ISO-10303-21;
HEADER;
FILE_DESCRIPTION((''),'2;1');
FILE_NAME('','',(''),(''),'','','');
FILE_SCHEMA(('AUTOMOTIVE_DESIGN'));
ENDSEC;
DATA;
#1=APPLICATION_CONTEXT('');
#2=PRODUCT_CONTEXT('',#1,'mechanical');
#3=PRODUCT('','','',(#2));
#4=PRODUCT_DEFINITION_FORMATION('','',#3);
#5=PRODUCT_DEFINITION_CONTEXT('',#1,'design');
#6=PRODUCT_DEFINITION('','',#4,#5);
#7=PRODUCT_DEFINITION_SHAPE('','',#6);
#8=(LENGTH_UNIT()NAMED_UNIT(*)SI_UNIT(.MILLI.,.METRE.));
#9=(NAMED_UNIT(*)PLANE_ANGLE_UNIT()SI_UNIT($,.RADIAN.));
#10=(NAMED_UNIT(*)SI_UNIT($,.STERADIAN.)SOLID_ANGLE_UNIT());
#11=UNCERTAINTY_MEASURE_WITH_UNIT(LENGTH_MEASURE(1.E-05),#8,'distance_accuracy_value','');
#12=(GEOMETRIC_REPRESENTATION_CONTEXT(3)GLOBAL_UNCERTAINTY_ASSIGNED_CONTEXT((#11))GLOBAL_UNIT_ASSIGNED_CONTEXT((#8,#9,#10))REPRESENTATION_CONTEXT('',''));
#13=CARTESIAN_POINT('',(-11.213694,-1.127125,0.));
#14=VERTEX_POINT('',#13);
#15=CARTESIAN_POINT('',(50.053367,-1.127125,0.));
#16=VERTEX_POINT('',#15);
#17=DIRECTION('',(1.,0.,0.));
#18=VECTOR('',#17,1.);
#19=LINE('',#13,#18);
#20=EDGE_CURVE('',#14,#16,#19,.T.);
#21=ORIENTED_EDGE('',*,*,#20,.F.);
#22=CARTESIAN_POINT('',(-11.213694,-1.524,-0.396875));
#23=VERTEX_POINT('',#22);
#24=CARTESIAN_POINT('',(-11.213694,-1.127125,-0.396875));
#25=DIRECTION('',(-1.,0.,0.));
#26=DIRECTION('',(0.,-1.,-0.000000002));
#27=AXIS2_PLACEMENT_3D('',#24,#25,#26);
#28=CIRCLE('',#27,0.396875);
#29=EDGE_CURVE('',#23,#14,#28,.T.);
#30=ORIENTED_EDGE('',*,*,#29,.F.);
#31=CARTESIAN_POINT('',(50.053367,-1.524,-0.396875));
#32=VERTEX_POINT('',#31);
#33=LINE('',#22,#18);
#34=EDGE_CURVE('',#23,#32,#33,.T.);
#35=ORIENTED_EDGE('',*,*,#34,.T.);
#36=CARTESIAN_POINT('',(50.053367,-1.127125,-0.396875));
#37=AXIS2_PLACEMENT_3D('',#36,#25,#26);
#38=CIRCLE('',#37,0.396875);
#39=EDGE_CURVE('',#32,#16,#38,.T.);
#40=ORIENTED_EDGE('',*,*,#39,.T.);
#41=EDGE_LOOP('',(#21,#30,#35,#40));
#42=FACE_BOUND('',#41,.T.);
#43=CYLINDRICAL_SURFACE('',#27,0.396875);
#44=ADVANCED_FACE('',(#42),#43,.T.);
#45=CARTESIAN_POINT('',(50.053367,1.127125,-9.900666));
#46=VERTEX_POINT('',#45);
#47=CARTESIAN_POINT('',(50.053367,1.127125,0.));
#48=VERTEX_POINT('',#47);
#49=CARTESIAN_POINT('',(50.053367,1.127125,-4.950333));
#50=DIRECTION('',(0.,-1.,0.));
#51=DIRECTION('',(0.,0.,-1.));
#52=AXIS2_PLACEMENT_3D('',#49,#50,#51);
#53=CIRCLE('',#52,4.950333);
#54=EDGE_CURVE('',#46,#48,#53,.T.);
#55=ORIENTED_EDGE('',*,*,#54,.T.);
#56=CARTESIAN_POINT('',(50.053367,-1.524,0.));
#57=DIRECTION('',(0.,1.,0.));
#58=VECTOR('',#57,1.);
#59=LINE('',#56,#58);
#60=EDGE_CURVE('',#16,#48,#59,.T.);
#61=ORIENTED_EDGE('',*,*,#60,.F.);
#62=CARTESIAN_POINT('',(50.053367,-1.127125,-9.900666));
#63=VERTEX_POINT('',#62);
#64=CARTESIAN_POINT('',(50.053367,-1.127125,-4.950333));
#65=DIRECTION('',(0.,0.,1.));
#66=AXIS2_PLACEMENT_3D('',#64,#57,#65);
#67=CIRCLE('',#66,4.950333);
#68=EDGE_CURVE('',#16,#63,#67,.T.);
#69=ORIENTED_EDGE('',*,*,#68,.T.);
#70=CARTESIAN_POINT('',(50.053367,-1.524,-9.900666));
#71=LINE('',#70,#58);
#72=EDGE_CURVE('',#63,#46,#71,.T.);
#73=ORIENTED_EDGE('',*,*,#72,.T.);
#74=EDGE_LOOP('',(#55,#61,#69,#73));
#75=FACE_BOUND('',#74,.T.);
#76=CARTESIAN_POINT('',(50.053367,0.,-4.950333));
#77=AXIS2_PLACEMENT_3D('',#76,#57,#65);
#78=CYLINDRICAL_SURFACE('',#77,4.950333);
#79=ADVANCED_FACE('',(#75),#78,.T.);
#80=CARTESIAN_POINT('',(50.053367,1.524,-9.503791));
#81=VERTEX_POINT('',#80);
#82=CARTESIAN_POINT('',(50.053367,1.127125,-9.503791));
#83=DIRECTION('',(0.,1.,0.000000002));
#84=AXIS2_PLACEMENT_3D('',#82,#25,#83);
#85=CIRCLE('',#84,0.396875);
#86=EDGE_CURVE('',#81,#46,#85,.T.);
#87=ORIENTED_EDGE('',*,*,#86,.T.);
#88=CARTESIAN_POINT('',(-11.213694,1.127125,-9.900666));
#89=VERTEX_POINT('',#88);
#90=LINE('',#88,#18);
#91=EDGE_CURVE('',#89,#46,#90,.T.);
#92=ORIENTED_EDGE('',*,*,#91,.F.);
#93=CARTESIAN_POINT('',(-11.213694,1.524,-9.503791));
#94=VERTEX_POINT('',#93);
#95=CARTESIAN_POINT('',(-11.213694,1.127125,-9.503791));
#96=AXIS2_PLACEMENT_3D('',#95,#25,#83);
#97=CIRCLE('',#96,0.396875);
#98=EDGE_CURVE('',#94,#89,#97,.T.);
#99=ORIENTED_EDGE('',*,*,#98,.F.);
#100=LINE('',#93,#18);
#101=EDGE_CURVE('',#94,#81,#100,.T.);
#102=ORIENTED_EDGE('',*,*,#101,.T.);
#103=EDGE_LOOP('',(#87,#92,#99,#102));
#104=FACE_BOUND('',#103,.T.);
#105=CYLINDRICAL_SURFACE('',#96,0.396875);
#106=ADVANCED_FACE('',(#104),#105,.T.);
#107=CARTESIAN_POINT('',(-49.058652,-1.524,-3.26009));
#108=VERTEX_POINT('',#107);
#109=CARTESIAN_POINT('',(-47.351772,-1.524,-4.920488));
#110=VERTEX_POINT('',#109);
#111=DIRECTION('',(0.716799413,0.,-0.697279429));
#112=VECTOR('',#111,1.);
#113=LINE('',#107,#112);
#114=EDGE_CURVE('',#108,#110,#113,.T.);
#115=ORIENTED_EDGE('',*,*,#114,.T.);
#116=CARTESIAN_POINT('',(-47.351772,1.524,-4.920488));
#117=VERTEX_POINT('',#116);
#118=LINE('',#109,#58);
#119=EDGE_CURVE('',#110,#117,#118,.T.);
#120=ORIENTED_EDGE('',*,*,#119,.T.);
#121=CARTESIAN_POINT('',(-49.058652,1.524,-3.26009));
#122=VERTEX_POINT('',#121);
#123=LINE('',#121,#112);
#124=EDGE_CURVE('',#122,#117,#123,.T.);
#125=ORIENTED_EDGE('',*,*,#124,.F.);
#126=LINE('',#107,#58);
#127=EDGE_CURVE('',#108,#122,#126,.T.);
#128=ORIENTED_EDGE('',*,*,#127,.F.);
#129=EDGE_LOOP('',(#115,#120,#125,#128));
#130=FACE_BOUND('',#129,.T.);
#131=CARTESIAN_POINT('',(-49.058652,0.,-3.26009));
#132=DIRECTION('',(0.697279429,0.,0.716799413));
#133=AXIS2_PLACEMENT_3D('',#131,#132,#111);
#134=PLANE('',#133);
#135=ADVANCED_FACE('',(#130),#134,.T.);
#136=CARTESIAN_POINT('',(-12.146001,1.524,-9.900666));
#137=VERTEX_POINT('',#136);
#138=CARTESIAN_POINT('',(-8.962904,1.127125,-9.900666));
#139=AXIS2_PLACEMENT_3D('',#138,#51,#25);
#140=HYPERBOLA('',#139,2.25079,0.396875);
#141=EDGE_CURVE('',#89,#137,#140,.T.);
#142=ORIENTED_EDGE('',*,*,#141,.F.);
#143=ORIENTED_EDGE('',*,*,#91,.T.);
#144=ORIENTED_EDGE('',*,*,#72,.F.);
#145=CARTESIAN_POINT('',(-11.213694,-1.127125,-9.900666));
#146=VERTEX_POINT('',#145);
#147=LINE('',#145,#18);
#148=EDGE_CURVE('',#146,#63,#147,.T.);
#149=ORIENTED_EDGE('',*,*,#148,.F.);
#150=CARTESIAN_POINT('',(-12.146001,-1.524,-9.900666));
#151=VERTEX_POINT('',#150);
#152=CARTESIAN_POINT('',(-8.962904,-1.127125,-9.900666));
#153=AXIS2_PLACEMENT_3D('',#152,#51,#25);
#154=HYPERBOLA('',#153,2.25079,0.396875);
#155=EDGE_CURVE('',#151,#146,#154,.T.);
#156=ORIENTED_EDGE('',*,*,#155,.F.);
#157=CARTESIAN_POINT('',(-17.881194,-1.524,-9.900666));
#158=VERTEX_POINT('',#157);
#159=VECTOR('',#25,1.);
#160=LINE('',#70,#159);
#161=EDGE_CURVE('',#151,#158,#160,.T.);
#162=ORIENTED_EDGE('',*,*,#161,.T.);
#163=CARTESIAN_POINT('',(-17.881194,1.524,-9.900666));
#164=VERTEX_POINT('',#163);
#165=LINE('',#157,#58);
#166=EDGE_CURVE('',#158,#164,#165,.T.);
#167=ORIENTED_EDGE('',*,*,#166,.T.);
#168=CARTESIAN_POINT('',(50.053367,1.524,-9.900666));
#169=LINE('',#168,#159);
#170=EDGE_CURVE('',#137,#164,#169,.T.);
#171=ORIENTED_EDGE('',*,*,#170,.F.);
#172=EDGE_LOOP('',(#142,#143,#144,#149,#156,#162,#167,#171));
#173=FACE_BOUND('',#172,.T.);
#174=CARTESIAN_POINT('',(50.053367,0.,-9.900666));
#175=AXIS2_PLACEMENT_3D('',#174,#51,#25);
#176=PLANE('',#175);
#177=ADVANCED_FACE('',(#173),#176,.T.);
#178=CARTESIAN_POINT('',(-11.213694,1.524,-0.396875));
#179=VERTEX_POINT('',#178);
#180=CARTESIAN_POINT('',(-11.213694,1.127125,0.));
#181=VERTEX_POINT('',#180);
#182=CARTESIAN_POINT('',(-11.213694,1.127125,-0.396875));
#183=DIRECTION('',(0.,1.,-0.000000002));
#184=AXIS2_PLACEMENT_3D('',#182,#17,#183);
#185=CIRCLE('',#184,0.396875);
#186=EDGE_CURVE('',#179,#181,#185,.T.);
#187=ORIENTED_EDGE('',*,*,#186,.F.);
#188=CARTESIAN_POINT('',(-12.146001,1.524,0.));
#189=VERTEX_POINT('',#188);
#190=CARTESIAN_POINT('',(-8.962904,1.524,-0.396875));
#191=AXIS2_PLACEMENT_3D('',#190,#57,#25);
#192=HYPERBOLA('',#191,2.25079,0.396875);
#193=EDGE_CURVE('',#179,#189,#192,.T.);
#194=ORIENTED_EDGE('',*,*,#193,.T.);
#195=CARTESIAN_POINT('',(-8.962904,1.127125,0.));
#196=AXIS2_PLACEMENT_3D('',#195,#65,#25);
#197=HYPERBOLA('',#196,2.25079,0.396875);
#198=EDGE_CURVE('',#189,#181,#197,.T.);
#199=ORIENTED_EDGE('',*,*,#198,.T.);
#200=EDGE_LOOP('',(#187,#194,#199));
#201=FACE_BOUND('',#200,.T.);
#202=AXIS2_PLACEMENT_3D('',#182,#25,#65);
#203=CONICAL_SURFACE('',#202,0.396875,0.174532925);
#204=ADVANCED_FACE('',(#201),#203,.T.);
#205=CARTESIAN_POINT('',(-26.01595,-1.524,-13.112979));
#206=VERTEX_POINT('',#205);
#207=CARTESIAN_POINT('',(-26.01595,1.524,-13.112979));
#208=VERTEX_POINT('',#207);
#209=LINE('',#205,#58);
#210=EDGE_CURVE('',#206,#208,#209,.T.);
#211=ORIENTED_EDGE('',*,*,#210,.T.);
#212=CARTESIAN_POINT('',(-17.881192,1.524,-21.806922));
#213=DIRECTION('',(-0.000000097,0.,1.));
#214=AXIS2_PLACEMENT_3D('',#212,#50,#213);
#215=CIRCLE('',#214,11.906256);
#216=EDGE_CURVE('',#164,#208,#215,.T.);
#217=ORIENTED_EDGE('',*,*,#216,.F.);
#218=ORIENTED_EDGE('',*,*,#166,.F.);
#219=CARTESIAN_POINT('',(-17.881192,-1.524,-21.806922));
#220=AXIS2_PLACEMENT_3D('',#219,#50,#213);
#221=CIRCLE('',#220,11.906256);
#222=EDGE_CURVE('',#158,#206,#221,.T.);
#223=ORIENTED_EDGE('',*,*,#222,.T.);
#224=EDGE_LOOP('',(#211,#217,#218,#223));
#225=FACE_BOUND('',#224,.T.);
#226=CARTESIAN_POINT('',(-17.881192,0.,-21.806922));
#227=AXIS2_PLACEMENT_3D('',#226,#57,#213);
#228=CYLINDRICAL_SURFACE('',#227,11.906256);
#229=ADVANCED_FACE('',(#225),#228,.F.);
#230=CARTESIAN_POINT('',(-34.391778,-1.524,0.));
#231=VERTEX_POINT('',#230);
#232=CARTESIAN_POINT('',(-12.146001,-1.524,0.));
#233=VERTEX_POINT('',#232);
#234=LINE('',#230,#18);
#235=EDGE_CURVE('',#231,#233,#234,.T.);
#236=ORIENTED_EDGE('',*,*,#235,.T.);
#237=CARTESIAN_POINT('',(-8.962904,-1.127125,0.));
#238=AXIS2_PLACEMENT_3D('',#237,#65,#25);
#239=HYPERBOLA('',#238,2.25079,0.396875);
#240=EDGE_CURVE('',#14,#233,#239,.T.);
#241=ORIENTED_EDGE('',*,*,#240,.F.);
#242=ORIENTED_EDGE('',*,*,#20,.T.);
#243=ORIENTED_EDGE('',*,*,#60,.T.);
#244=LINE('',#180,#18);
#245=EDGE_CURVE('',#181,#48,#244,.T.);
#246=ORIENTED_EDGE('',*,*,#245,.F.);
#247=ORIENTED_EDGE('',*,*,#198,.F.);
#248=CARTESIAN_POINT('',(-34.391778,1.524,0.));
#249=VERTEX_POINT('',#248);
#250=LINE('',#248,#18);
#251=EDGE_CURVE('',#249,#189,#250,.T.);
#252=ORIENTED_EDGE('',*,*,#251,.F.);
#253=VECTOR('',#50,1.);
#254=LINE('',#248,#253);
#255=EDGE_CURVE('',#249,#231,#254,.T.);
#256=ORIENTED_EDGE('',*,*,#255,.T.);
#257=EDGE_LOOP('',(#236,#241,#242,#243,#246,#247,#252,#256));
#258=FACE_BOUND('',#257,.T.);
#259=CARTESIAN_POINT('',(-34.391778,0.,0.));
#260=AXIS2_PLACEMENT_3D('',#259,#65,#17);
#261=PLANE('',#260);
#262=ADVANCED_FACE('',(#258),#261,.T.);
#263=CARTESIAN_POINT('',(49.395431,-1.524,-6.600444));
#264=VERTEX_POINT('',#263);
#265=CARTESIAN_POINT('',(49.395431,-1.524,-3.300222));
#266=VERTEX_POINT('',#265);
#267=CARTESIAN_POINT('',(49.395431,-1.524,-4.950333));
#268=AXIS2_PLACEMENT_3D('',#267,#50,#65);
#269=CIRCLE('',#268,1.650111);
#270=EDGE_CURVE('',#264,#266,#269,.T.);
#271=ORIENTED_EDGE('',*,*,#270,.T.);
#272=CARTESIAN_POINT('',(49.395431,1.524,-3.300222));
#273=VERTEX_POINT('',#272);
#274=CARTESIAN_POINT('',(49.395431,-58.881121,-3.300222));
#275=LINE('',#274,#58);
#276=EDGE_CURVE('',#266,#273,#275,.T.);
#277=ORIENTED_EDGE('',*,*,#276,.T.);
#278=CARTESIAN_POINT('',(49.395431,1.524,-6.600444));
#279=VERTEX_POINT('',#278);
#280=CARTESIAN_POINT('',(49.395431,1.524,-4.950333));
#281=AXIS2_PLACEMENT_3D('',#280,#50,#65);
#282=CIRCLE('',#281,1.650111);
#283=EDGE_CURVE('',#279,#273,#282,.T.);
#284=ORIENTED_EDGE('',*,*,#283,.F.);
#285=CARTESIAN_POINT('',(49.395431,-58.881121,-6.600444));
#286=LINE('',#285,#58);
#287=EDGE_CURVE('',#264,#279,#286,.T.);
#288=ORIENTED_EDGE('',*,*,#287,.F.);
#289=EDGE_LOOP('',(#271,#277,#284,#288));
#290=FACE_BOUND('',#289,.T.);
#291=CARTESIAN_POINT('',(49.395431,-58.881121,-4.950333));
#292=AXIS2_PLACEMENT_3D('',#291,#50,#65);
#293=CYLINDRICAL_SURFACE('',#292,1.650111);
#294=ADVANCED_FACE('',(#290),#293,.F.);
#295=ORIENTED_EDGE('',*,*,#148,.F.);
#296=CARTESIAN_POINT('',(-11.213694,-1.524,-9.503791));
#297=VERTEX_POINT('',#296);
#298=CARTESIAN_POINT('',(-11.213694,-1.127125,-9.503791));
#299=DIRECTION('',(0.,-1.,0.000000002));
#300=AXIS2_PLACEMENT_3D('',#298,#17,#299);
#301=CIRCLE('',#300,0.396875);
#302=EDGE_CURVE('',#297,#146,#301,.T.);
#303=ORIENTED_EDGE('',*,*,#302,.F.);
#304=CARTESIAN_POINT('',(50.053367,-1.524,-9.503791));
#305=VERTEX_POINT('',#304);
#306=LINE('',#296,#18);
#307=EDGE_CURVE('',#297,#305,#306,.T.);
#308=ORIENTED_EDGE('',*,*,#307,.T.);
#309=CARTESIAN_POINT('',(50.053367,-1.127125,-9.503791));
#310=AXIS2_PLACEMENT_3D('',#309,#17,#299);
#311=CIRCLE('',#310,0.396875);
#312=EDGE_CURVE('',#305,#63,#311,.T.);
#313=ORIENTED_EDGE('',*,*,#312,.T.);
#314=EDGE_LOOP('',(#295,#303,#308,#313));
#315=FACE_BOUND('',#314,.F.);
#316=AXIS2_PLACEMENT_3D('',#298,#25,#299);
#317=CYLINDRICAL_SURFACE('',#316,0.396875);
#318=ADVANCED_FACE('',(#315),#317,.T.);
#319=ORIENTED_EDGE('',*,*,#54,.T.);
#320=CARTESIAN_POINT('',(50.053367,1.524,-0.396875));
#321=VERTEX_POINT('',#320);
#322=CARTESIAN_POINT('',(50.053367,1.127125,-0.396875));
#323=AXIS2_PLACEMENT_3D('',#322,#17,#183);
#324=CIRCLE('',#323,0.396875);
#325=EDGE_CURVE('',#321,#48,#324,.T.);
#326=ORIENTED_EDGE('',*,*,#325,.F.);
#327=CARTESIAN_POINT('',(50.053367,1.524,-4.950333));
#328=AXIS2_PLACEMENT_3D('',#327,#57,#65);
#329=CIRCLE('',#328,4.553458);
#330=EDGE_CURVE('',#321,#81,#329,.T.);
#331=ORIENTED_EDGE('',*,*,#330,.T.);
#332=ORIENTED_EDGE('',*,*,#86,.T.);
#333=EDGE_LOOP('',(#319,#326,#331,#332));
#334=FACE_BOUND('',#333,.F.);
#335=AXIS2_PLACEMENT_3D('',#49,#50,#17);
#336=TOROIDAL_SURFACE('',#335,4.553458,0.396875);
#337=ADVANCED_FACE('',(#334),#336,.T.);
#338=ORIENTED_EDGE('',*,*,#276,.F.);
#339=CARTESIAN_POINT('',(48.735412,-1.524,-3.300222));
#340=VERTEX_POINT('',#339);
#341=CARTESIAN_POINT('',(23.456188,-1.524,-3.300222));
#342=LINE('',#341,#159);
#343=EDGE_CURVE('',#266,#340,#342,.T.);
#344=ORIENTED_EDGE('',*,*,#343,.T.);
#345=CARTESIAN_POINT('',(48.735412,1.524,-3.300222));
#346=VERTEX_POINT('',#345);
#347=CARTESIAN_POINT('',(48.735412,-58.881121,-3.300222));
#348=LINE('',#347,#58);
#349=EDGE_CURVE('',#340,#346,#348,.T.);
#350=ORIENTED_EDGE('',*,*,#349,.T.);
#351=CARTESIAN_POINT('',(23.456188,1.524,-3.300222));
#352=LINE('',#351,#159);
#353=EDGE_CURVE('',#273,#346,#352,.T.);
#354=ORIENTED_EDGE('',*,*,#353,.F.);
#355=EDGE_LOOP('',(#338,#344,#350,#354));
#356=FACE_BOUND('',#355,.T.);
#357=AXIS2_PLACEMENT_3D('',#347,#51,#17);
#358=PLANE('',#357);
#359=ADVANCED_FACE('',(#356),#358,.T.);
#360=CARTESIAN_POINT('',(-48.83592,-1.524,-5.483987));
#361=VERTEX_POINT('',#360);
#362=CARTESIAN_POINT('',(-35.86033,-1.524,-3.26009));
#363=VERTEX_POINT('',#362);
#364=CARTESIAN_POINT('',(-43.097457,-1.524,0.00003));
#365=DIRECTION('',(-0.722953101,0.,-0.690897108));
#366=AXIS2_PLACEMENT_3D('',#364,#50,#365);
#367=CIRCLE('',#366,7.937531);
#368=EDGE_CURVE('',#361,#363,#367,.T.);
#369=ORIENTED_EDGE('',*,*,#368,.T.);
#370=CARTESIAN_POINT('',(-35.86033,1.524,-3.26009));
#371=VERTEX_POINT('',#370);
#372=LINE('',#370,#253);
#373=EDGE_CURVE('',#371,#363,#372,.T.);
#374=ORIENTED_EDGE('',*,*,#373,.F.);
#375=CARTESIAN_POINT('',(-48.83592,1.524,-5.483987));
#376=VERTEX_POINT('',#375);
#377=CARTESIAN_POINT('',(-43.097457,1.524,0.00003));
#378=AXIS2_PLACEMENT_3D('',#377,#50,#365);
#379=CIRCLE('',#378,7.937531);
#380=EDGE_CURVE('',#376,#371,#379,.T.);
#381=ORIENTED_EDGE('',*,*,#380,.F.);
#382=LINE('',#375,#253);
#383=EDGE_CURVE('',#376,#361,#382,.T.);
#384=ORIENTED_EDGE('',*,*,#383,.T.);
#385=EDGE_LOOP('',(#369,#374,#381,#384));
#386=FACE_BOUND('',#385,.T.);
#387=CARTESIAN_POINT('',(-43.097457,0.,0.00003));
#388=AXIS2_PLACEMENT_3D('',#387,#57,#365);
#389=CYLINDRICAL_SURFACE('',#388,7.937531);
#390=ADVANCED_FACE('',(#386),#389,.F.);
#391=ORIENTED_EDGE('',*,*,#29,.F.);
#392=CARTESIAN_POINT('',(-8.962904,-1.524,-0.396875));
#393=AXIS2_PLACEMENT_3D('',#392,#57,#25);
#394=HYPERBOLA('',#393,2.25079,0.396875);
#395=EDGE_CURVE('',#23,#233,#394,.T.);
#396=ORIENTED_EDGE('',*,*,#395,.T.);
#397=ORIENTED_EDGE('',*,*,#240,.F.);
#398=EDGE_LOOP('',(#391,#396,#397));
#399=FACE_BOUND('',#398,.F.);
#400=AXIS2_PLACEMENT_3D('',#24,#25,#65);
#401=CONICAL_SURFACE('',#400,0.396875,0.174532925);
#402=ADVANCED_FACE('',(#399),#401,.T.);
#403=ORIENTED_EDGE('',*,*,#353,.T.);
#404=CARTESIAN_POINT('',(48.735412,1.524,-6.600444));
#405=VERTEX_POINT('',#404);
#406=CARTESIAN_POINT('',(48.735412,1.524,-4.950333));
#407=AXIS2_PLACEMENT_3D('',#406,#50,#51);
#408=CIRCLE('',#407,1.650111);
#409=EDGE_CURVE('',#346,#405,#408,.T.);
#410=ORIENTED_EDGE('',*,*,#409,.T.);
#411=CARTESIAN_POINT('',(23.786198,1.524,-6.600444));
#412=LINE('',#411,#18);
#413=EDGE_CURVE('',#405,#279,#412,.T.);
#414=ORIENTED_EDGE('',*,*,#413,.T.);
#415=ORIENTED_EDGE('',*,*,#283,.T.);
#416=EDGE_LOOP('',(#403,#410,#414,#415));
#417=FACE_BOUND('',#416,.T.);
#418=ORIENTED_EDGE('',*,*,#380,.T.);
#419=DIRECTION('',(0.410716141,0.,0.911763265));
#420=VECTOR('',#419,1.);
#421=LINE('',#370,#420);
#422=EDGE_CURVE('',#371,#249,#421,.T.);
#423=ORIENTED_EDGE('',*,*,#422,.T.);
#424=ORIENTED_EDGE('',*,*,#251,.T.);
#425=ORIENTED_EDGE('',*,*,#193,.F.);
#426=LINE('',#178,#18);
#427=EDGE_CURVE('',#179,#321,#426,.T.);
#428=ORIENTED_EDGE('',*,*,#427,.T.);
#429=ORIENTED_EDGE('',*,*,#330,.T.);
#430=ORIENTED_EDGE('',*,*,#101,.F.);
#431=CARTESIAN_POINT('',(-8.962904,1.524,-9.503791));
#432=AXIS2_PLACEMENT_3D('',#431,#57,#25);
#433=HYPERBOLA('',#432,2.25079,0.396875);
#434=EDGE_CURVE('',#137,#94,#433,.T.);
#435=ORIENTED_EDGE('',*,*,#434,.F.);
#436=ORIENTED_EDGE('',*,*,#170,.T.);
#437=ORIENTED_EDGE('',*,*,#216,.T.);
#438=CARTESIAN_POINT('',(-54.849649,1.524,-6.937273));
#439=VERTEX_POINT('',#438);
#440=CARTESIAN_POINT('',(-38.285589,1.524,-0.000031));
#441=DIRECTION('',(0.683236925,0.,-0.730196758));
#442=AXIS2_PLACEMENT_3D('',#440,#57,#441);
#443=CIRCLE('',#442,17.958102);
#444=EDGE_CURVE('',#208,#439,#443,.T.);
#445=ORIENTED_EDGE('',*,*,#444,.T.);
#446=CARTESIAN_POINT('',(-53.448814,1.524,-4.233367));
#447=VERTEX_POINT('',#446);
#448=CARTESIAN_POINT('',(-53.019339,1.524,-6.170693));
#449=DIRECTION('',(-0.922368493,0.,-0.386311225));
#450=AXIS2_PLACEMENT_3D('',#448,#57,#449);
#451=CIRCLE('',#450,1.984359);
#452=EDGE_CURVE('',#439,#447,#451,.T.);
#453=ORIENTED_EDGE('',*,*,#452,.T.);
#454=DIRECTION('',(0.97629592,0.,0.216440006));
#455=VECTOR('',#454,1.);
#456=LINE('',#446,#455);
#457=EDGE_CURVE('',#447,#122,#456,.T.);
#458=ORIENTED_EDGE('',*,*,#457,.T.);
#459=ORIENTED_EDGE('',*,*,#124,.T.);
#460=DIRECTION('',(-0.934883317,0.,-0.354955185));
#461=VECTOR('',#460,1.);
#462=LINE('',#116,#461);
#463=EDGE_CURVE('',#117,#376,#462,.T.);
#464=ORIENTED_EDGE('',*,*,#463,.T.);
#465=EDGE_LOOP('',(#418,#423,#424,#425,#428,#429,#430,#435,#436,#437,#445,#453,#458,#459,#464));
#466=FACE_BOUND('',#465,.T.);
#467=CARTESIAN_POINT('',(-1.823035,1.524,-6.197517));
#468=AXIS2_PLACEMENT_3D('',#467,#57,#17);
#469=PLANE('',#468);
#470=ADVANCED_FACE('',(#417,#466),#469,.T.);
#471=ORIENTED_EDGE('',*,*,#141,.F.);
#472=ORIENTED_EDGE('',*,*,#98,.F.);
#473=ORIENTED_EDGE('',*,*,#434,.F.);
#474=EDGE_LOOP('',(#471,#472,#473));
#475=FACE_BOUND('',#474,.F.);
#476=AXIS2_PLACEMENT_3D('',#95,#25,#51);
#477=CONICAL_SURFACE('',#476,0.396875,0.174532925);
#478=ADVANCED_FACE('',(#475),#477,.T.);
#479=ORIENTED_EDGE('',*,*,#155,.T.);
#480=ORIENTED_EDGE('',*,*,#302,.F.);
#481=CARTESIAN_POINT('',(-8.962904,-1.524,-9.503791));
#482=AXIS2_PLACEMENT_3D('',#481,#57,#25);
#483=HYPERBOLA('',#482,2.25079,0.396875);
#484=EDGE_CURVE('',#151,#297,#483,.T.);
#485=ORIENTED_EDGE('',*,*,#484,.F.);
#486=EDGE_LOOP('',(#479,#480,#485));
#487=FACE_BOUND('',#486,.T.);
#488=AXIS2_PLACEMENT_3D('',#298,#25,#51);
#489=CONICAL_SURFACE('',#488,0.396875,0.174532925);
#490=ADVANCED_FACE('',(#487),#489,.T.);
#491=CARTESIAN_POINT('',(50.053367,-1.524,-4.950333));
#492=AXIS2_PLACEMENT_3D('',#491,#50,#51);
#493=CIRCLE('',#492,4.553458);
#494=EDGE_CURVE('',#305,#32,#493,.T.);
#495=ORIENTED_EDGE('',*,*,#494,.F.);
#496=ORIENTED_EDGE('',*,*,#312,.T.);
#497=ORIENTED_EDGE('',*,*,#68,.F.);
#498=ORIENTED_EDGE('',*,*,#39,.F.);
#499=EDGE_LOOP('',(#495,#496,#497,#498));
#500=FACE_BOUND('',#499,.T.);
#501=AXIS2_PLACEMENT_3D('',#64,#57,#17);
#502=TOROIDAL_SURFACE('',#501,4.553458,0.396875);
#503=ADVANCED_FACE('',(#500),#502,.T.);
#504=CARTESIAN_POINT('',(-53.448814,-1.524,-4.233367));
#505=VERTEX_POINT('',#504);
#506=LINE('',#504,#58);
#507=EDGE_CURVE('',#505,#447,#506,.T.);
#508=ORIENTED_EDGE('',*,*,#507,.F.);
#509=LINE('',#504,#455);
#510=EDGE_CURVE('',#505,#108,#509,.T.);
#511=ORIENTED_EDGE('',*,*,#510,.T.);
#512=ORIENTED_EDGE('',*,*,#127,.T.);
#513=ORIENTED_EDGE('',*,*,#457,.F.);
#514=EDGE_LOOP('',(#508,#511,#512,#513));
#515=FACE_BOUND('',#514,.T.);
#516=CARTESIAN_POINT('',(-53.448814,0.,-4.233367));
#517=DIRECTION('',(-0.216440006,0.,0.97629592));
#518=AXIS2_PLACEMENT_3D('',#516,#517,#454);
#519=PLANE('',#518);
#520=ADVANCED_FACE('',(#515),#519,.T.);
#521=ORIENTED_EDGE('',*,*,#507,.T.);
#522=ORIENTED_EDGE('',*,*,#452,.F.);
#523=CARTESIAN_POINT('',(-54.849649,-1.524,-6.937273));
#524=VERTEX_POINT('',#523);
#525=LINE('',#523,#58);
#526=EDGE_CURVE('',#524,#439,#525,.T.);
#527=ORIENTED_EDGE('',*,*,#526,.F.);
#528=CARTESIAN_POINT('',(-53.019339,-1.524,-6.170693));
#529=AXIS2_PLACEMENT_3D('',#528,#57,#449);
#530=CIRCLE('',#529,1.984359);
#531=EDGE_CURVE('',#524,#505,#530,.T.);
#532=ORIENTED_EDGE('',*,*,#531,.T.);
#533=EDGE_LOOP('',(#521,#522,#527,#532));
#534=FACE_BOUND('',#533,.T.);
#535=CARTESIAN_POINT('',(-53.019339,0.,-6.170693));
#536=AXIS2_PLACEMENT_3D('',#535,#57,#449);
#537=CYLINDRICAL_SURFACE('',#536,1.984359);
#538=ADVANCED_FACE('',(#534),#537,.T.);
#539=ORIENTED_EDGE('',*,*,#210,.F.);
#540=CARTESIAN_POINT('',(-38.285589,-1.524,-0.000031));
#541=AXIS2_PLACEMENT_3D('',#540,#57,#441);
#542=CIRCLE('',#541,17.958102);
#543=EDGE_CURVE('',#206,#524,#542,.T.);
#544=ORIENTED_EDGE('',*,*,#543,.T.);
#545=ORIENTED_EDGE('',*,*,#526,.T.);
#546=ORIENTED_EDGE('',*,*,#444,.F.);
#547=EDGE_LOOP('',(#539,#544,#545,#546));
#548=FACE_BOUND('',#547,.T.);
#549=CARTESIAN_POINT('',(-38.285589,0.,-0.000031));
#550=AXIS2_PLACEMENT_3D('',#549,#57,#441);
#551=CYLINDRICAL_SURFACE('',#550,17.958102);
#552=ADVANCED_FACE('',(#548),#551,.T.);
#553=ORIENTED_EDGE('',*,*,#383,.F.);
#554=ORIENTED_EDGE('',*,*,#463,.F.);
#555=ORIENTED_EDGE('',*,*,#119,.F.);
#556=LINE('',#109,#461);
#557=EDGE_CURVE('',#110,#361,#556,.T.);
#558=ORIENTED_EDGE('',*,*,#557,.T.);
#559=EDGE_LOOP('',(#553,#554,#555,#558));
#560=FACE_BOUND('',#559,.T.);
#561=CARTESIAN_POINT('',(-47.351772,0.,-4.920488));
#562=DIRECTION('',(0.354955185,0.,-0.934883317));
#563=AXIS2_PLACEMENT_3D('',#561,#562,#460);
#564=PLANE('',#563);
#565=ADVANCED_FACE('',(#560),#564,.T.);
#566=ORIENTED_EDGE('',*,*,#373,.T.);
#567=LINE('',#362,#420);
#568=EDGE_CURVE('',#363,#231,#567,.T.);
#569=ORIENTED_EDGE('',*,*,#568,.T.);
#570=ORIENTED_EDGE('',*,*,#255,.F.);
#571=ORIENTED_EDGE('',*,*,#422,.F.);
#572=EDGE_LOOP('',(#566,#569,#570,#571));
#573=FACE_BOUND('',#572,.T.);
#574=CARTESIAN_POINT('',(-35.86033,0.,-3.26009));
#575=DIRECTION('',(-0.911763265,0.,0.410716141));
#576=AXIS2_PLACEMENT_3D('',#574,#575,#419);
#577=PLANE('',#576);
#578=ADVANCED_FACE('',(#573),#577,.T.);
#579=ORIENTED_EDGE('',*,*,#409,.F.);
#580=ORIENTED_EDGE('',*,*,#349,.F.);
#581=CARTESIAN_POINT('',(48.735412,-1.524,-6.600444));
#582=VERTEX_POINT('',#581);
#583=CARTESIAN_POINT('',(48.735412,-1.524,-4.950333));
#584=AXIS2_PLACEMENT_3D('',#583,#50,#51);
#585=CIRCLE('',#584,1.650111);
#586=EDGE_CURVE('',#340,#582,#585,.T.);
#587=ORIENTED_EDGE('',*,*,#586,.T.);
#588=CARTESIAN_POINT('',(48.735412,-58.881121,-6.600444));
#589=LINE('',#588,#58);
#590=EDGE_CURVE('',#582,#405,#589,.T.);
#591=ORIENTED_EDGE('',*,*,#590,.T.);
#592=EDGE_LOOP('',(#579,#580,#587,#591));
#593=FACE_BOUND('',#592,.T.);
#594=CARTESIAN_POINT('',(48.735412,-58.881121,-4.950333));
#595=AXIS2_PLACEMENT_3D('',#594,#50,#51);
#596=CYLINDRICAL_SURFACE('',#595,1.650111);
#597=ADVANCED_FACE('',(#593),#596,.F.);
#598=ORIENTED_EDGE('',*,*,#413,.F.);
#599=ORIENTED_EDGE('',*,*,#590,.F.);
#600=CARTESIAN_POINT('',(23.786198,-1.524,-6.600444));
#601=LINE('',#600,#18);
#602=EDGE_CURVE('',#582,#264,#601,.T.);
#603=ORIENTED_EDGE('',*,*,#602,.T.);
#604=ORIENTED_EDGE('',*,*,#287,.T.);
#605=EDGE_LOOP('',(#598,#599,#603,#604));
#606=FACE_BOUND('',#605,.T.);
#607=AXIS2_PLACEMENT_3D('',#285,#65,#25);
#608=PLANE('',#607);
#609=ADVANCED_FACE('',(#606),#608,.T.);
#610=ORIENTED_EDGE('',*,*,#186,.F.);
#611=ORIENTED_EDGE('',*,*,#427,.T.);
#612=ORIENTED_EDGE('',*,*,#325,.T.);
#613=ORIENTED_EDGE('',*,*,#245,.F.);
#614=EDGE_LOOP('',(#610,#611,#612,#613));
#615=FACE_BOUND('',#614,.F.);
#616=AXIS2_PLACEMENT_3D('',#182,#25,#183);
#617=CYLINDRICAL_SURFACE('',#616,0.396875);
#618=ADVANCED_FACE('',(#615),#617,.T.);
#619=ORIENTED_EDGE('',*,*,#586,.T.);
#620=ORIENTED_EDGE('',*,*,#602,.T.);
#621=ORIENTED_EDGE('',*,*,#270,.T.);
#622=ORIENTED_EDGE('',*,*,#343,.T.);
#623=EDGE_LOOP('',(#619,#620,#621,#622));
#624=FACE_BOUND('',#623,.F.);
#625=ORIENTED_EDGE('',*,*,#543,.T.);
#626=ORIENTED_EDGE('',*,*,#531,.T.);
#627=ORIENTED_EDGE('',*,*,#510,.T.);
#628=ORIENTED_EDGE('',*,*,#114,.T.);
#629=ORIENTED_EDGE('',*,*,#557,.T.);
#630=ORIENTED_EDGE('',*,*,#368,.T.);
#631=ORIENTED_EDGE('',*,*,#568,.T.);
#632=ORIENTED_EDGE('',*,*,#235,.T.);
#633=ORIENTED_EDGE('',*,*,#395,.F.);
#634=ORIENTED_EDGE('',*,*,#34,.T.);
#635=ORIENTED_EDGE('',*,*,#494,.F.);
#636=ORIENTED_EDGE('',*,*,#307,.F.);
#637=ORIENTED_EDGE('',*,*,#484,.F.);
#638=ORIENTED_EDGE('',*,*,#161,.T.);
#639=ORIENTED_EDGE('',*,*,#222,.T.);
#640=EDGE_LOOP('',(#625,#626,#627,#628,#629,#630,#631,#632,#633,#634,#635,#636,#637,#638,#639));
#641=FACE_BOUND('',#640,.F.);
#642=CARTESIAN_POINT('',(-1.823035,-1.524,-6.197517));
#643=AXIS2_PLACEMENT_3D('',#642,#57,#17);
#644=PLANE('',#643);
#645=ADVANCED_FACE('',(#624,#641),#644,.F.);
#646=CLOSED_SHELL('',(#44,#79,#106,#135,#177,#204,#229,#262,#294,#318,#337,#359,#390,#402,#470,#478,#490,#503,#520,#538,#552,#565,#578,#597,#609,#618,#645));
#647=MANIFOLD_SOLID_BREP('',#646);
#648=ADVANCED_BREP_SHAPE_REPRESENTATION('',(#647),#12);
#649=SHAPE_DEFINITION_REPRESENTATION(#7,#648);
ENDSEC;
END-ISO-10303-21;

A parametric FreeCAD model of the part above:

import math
import FreeCAD as App
import Part
import Sketcher

V = App.Vector
Q = App.Units.Quantity


def add_polygon(sketch, points):
    """Adds a closed chain of lines whose ends are joined by coincident constraints."""
    first, n = sketch.GeometryCount, len(points)
    for a, b in zip(points, points[1:] + points[:1]):
        sketch.addGeometry(Part.LineSegment(App.Vector(*a, 0), App.Vector(*b, 0)), False)
    for i in range(n):
        sketch.addConstraint(Sketcher.Constraint("Coincident", first + i, 2, first + (i + 1) % n, 1))

doc = App.newDocument("Part")
body = doc.addObject("PartDesign::Body", "Body")

# Sketch on XZ plane
sketch1 = body.newObject("Sketcher::SketchObject", "Sketch")
sketch1.AttachmentSupport = (doc.getObject("XZ_Plane"), [""])
sketch1.MapMode = "FlatFace"
sketch1.addGeometry([
    Part.LineSegment(V(-34.391778, 0, 0), V(50.053367, 0, 0)),  # 0
    Part.ArcOfCircle(Part.Circle(V(50.053367, -4.950333, 0), V(0, 0, 1), 4.950333), math.radians(-90), math.radians(90)),  # 1
    Part.LineSegment(V(50.053367, -9.900666, 0), V(-17.881194, -9.900666, 0)),  # 2
    Part.ArcOfCircle(Part.Circle(V(-17.881192, -21.806922, 0), V(0, 0, 1), 11.906256), math.radians(90.000006), math.radians(133.09687)),  # 3
    Part.ArcOfCircle(Part.Circle(V(-38.285589, -0.000031, 0), V(0, 0, 1), 17.958102), math.radians(-157.275434), math.radians(-46.902891)),  # 4
    Part.ArcOfCircle(Part.Circle(V(-53.019339, -6.170693, 0), V(0, 0, 1), 1.984359), math.radians(102.499437), math.radians(202.725167)),  # 5
    Part.LineSegment(V(-53.448814, -4.233367, 0), V(-49.058652, -3.26009, 0)),  # 6
    Part.LineSegment(V(-49.058652, -3.26009, 0), V(-47.351772, -4.920488, 0)),  # 7
    Part.LineSegment(V(-47.351772, -4.920488, 0), V(-48.83592, -5.483987, 0)),  # 8
    Part.ArcOfCircle(Part.Circle(V(-43.097457, 0.00003, 0), V(0, 0, 1), 7.937531), math.radians(-136.298835), math.radians(-24.25021)),  # 9
    Part.LineSegment(V(-35.86033, -3.26009, 0), V(-34.391778, 0, 0)),  # 10
], False)
sketch1.addConstraint([
    Sketcher.Constraint("Tangent", 0, 2, 1, 2),
    Sketcher.Constraint("Tangent", 1, 1, 2, 1),
    Sketcher.Constraint("Tangent", 2, 2, 3, 1),
    Sketcher.Constraint("Coincident", 3, 2, 4, 2),
    Sketcher.Constraint("Coincident", 4, 1, 5, 2),
    Sketcher.Constraint("Coincident", 5, 1, 6, 1),
    Sketcher.Constraint("Coincident", 6, 2, 7, 1),
    Sketcher.Constraint("Coincident", 7, 2, 8, 1),
    Sketcher.Constraint("Coincident", 8, 2, 9, 1),
    Sketcher.Constraint("Coincident", 9, 2, 10, 1),
    Sketcher.Constraint("Coincident", 10, 2, 0, 1),
    Sketcher.Constraint("Horizontal", 0),
    Sketcher.Constraint("Horizontal", 2),
    Sketcher.Constraint("PointOnObject", 0, 2, -1),
    Sketcher.Constraint("Horizontal", 6, 2, 9, 2),
    Sketcher.Constraint("Distance", 7, Q("0.0937501 in")),
    Sketcher.Constraint("Radius", 5, 1.984359),
    Sketcher.Constraint("Radius", 9, 7.937531),
    Sketcher.Constraint("Radius", 1, 4.950333),
    Sketcher.Constraint("Radius", 3, 11.906256),
    Sketcher.Constraint("Radius", 4, 17.958102),
    Sketcher.Constraint("DistanceX", 6, 2, 7, 2, Q("0.0672 in")),
    Sketcher.Constraint("DistanceX", 2, 2, 2, 1, 67.934561),
    Sketcher.Constraint("DistanceX", 4, 1, 3, 2, 28.833699),
    Sketcher.Constraint("DistanceY", 8, 2, 7, 2, 0.563499),
    Sketcher.Constraint("Distance", 8, 1.587522),
    Sketcher.Constraint("Distance", 10, 3.575588),
    Sketcher.Constraint("DistanceX", 0, 1, 0, 2, 84.445145),
    Sketcher.Constraint("DistanceX", 4, 3, -1, 1, 38.285589),
    Sketcher.Constraint("DistanceX", 5, 3, -1, 1, 53.019339),
    Sketcher.Constraint("DistanceX", 3, 2, -1, 1, 26.01595),
    Sketcher.Constraint("DistanceY", 3, 2, -1, 1, 13.112979),
    Sketcher.Constraint("DistanceY", 6, 2, -1, 1, 3.26009),
    Sketcher.Constraint("DistanceX", 8, 2, -1, 1, 48.83592),
    Sketcher.Constraint("DistanceY", 3, 2, 5, 1, 8.879611),
])
pad1 = body.newObject("PartDesign::Pad", "Pad")
pad1.Profile = sketch1
pad1.Length = Q("0.12 in")
pad1.Midplane = True

# Sketch on XZ plane
sketch2 = body.newObject("Sketcher::SketchObject", "Sketch001")
sketch2.AttachmentSupport = (doc.getObject("XZ_Plane"), [""])
sketch2.MapMode = "FlatFace"
sketch2.addGeometry([
    Part.LineSegment(V(48.735412, -3.300222, 0), V(49.395431, -3.300222, 0)),
    Part.ArcOfCircle(Part.Circle(V(49.395431, -4.950333, 0), V(0, 0, 1), 1.650111), math.radians(-90), math.radians(90)),
    Part.LineSegment(V(49.395431, -6.600444, 0), V(48.735412, -6.600444, 0)),
    Part.ArcOfCircle(Part.Circle(V(48.735412, -4.950333, 0), V(0, 0, 1), 1.650111), math.radians(90), math.radians(270)),
], False)
sketch2.addConstraint([
    Sketcher.Constraint("Tangent", 0, 2, 1, 2),
    Sketcher.Constraint("Tangent", 1, 1, 2, 1),
    Sketcher.Constraint("Tangent", 2, 2, 3, 2),
    Sketcher.Constraint("Tangent", 3, 1, 0, 1),
    Sketcher.Constraint("Horizontal", 0),
    Sketcher.Constraint("Horizontal", 2),
    Sketcher.Constraint("Radius", 1, 1.650111),
    Sketcher.Constraint("DistanceX", 0, 1, 0, 2, 0.660019),
    Sketcher.Constraint("DistanceX", -1, 1, 1, 3, 49.395431),
    Sketcher.Constraint("DistanceY", 3, 1, -1, 1, 3.300222),
])
pocket1 = body.newObject("PartDesign::Pocket", "Pocket")
pocket1.Profile = sketch2
pocket1.Type = "ThroughAll"
pocket1.Midplane = True

# Sketch on YZ plane
sketch3 = body.newObject("Sketcher::SketchObject", "Sketch002")
sketch3.AttachmentSupport = (doc.getObject("YZ_Plane"), [""])
sketch3.MapMode = "FlatFace"
sketch3.addGeometry([
    Part.LineSegment(V(1.127125, 0.254, 0), V(1.127125, 0, 0)),  # 0
    Part.ArcOfCircle(Part.Circle(V(1.127125, -0.396875, 0), V(0, 0, 1), 0.396875), math.radians(0), math.radians(90)),  # 1
    Part.LineSegment(V(1.524, -0.396875, 0), V(1.778, -0.396875, 0)),  # 2
    Part.LineSegment(V(1.778, -0.396875, 0), V(1.778, 0.254, 0)),  # 3
    Part.LineSegment(V(1.778, 0.254, 0), V(1.127125, 0.254, 0)),  # 4
    Part.LineSegment(V(1.127125, -9.900666, 0), V(1.127125, -10.154666, 0)),  # 5
    Part.LineSegment(V(1.127125, -10.154666, 0), V(1.778, -10.154666, 0)),  # 6
    Part.LineSegment(V(1.778, -10.154666, 0), V(1.778, -9.503791, 0)),  # 7
    Part.LineSegment(V(1.778, -9.503791, 0), V(1.524, -9.503791, 0)),  # 8
    Part.ArcOfCircle(Part.Circle(V(1.127125, -9.503791, 0), V(0, 0, 1), 0.396875), math.radians(-90), math.radians(0)),  # 9
    Part.LineSegment(V(-1.127125, 0, 0), V(-1.127125, 0.254, 0)),  # 10
    Part.LineSegment(V(-1.127125, 0.254, 0), V(-1.778, 0.254, 0)),  # 11
    Part.LineSegment(V(-1.778, 0.254, 0), V(-1.778, -0.396875, 0)),  # 12
    Part.LineSegment(V(-1.778, -0.396875, 0), V(-1.524, -0.396875, 0)),  # 13
    Part.ArcOfCircle(Part.Circle(V(-1.127125, -0.396875, 0), V(0, 0, 1), 0.396875), math.radians(90), math.radians(180)),  # 14
    Part.LineSegment(V(-1.127125, -10.154666, 0), V(-1.127125, -9.900666, 0)),  # 15
    Part.ArcOfCircle(Part.Circle(V(-1.127125, -9.503791, 0), V(0, 0, 1), 0.396875), math.radians(180), math.radians(270)),  # 16
    Part.LineSegment(V(-1.524, -9.503791, 0), V(-1.778, -9.503791, 0)),  # 17
    Part.LineSegment(V(-1.778, -9.503791, 0), V(-1.778, -10.154666, 0)),  # 18
    Part.LineSegment(V(-1.778, -10.154666, 0), V(-1.127125, -10.154666, 0)),  # 19
], False)
sketch3.addConstraint([
    Sketcher.Constraint("Coincident", 0, 2, 1, 2),
    Sketcher.Constraint("Coincident", 1, 1, 2, 1),
    Sketcher.Constraint("Coincident", 2, 2, 3, 1),
    Sketcher.Constraint("Coincident", 3, 2, 4, 1),
    Sketcher.Constraint("Coincident", 4, 2, 0, 1),
    Sketcher.Constraint("Coincident", 5, 2, 6, 1),
    Sketcher.Constraint("Coincident", 6, 2, 7, 1),
    Sketcher.Constraint("Coincident", 7, 2, 8, 1),
    Sketcher.Constraint("Coincident", 8, 2, 9, 2),
    Sketcher.Constraint("Coincident", 9, 1, 5, 1),
    Sketcher.Constraint("Coincident", 10, 2, 11, 1),
    Sketcher.Constraint("Coincident", 11, 2, 12, 1),
    Sketcher.Constraint("Coincident", 12, 2, 13, 1),
    Sketcher.Constraint("Coincident", 13, 2, 14, 2),
    Sketcher.Constraint("Coincident", 14, 1, 10, 1),
    Sketcher.Constraint("Coincident", 15, 2, 16, 2),
    Sketcher.Constraint("Coincident", 16, 1, 17, 1),
    Sketcher.Constraint("Coincident", 17, 2, 18, 1),
    Sketcher.Constraint("Coincident", 18, 2, 19, 1),
    Sketcher.Constraint("Coincident", 19, 2, 15, 1),
    Sketcher.Constraint("Vertical", 0),
    Sketcher.Constraint("Horizontal", 2),
    Sketcher.Constraint("Vertical", 3),
    Sketcher.Constraint("Horizontal", 4),
    Sketcher.Constraint("Vertical", 5),
    Sketcher.Constraint("Horizontal", 6),
    Sketcher.Constraint("Vertical", 7),
    Sketcher.Constraint("Horizontal", 8),
    Sketcher.Constraint("Vertical", 10),
    Sketcher.Constraint("Horizontal", 11),
    Sketcher.Constraint("Vertical", 12),
    Sketcher.Constraint("Horizontal", 13),
    Sketcher.Constraint("Vertical", 15),
    Sketcher.Constraint("Horizontal", 17),
    Sketcher.Constraint("Vertical", 18),
    Sketcher.Constraint("Horizontal", 19),
    Sketcher.Constraint("Equal", 1, 9),
    Sketcher.Constraint("Equal", 9, 14),
    Sketcher.Constraint("Equal", 14, 16),
    Sketcher.Constraint("Symmetric", 0, 2, 14, 1, -1, 1),
    Sketcher.Constraint("Symmetric", 1, 3, 14, 3, -2),
    Sketcher.Constraint("Symmetric", 9, 3, 16, 3, -2),
    Sketcher.Constraint("Symmetric", 3, 2, 11, 2, -2),
    Sketcher.Constraint("Symmetric", 7, 2, 17, 2, -2),
    Sketcher.Constraint("Symmetric", 5, 2, 19, 2, -2),
    Sketcher.Constraint("Horizontal", 14, 3, 1, 1),
    Sketcher.Constraint("Horizontal", 16, 3, 7, 2),
    Sketcher.Constraint("Horizontal", 2, 2, 12, 2),
    Sketcher.Constraint("Vertical", 1, 3, 9, 3),
    Sketcher.Constraint("Vertical", 9, 3, 0, 2),
    Sketcher.Constraint("Vertical", 4, 2, 5, 2),
    Sketcher.Constraint("Vertical", 3, 2, 6, 2),
    Sketcher.Constraint("Equal", 17, 0),
    Sketcher.Constraint("Equal", 0, 5),
    Sketcher.Constraint("Radius", 1, Q("0.015625 in")),
    Sketcher.Constraint("DistanceX", 2, 1, 2, 2, Q("0.01 in")),
    Sketcher.Constraint("DistanceX", -1, 1, 1, 1, Q("0.06 in")),
    Sketcher.Constraint("DistanceY", 9, 3, -1, 1, 9.503791),
])
pocket2 = body.newObject("PartDesign::Pocket", "Pocket001")
pocket2.Profile = sketch3
pocket2.Type = "TwoLengths"
pocket2.Length = 50.053367
pocket2.Length2 = 11.213694
pocket2.Reversed = True

# Sketch on XY plane
sketch4 = body.newObject("Sketcher::SketchObject", "Sketch003")
sketch4.AttachmentSupport = (doc.getObject("XY_Plane"), [""])
sketch4.MapMode = "FlatFace"
sketch4.AttachmentOffset = App.Placement(V(0, 0, -4.950333), App.Rotation())
sketch4.addGeometry([
    Part.LineSegment(V(55.0037, 1.127125, 0), V(55.2577, 1.127125, 0)),  # 0
    Part.LineSegment(V(55.2577, 1.127125, 0), V(55.2577, 1.778, 0)),  # 1
    Part.LineSegment(V(55.2577, 1.778, 0), V(54.606825, 1.778, 0)),  # 2
    Part.LineSegment(V(54.606825, 1.778, 0), V(54.606825, 1.524, 0)),  # 3
    Part.ArcOfCircle(Part.Circle(V(54.606825, 1.127125, 0), V(0, 0, 1), 0.396875), math.radians(0), math.radians(90)),  # 4
    Part.LineSegment(V(55.2577, -1.127125, 0), V(55.0037, -1.127125, 0)),  # 5
    Part.ArcOfCircle(Part.Circle(V(54.606825, -1.127125, 0), V(0, 0, 1), 0.396875), math.radians(-90), math.radians(0)),  # 6
    Part.LineSegment(V(54.606825, -1.524, 0), V(54.606825, -1.778, 0)),  # 7
    Part.LineSegment(V(54.606825, -1.778, 0), V(55.2577, -1.778, 0)),  # 8
    Part.LineSegment(V(55.2577, -1.778, 0), V(55.2577, -1.127125, 0)),  # 9
], False)
sketch4.addGeometry(Part.LineSegment(V(50.053367, -1.778, 0), V(50.053367, 1.778, 0)), True)  # axis
sketch4.addConstraint([
    Sketcher.Constraint("Coincident", 0, 2, 1, 1),
    Sketcher.Constraint("Coincident", 1, 2, 2, 1),
    Sketcher.Constraint("Coincident", 2, 2, 3, 1),
    Sketcher.Constraint("Coincident", 3, 2, 4, 2),
    Sketcher.Constraint("Coincident", 4, 1, 0, 1),
    Sketcher.Constraint("Coincident", 5, 2, 6, 2),
    Sketcher.Constraint("Coincident", 6, 1, 7, 1),
    Sketcher.Constraint("Coincident", 7, 2, 8, 1),
    Sketcher.Constraint("Coincident", 8, 2, 9, 1),
    Sketcher.Constraint("Coincident", 9, 2, 5, 1),
    Sketcher.Constraint("Horizontal", 0),
    Sketcher.Constraint("Vertical", 1),
    Sketcher.Constraint("Horizontal", 2),
    Sketcher.Constraint("Vertical", 3),
    Sketcher.Constraint("Horizontal", 5),
    Sketcher.Constraint("Vertical", 7),
    Sketcher.Constraint("Horizontal", 8),
    Sketcher.Constraint("Vertical", 9),
    Sketcher.Constraint("Vertical", 10),
    Sketcher.Constraint("Equal", 4, 6),
    Sketcher.Constraint("Symmetric", 4, 3, 6, 3, -1),
    Sketcher.Constraint("Symmetric", 2, 2, 7, 2, -1),
    Sketcher.Constraint("Symmetric", 0, 2, 9, 2, -1),
    Sketcher.Constraint("Horizontal", 4, 3, 0, 2),
    Sketcher.Constraint("Horizontal", 8, 2, 10, 1),
    Sketcher.Constraint("Horizontal", 2, 2, 10, 2),
    Sketcher.Constraint("Vertical", 6, 3, 2, 2),
    Sketcher.Constraint("Equal", 8, 1),
    Sketcher.Constraint("Radius", 4, Q("0.015625 in")),
    Sketcher.Constraint("DistanceX", 0, 1, 0, 2, Q("0.01 in")),
    Sketcher.Constraint("DistanceY", 10, 1, 10, 2, Q("0.14 in")),
    Sketcher.Constraint("DistanceX", -1, 1, 0, 2, Q("2.1755 in")),
    Sketcher.Constraint("DistanceX", 10, 1, 6, 3, 4.553458),
])
groove = body.newObject("PartDesign::Groove", "Groove")
groove.Profile = sketch4
groove.ReferenceAxis = (sketch4, ["Axis0"])
groove.Angle = 90

# Sketch on XY plane
sketch5 = body.newObject("Sketcher::SketchObject", "Sketch004")
sketch5.AttachmentSupport = (doc.getObject("XY_Plane"), [""])
sketch5.MapMode = "FlatFace"
sketch5.AttachmentOffset = App.Placement(V(0, 0, -4.950333), App.Rotation())
sketch5.addGeometry([
    Part.LineSegment(V(55.0037, 1.127125, 0), V(55.2577, 1.127125, 0)),  # 0
    Part.LineSegment(V(55.2577, 1.127125, 0), V(55.2577, 1.778, 0)),  # 1
    Part.LineSegment(V(55.2577, 1.778, 0), V(54.606825, 1.778, 0)),  # 2
    Part.LineSegment(V(54.606825, 1.778, 0), V(54.606825, 1.524, 0)),  # 3
    Part.ArcOfCircle(Part.Circle(V(54.606825, 1.127125, 0), V(0, 0, 1), 0.396875), math.radians(0), math.radians(90)),  # 4
    Part.LineSegment(V(55.2577, -1.127125, 0), V(55.0037, -1.127125, 0)),  # 5
    Part.ArcOfCircle(Part.Circle(V(54.606825, -1.127125, 0), V(0, 0, 1), 0.396875), math.radians(-90), math.radians(0)),  # 6
    Part.LineSegment(V(54.606825, -1.524, 0), V(54.606825, -1.778, 0)),  # 7
    Part.LineSegment(V(54.606825, -1.778, 0), V(55.2577, -1.778, 0)),  # 8
    Part.LineSegment(V(55.2577, -1.778, 0), V(55.2577, -1.127125, 0)),  # 9
], False)
sketch5.addGeometry(Part.LineSegment(V(50.053367, 1.778, 0), V(50.053367, -1.778, 0)), True)  # axis
sketch5.addConstraint([
    Sketcher.Constraint("Coincident", 0, 2, 1, 1),
    Sketcher.Constraint("Coincident", 1, 2, 2, 1),
    Sketcher.Constraint("Coincident", 2, 2, 3, 1),
    Sketcher.Constraint("Coincident", 3, 2, 4, 2),
    Sketcher.Constraint("Coincident", 4, 1, 0, 1),
    Sketcher.Constraint("Coincident", 5, 2, 6, 2),
    Sketcher.Constraint("Coincident", 6, 1, 7, 1),
    Sketcher.Constraint("Coincident", 7, 2, 8, 1),
    Sketcher.Constraint("Coincident", 8, 2, 9, 1),
    Sketcher.Constraint("Coincident", 9, 2, 5, 1),
    Sketcher.Constraint("Horizontal", 0),
    Sketcher.Constraint("Vertical", 1),
    Sketcher.Constraint("Horizontal", 2),
    Sketcher.Constraint("Vertical", 3),
    Sketcher.Constraint("Horizontal", 5),
    Sketcher.Constraint("Vertical", 7),
    Sketcher.Constraint("Horizontal", 8),
    Sketcher.Constraint("Vertical", 9),
    Sketcher.Constraint("Vertical", 10),
    Sketcher.Constraint("Equal", 4, 6),
    Sketcher.Constraint("Symmetric", 4, 3, 6, 3, -1),
    Sketcher.Constraint("Symmetric", 2, 2, 7, 2, -1),
    Sketcher.Constraint("Symmetric", 0, 2, 9, 2, -1),
    Sketcher.Constraint("Horizontal", 4, 3, 0, 2),
    Sketcher.Constraint("Horizontal", 2, 2, 10, 1),
    Sketcher.Constraint("Horizontal", 8, 2, 10, 2),
    Sketcher.Constraint("Vertical", 6, 3, 2, 2),
    Sketcher.Constraint("Equal", 8, 1),
    Sketcher.Constraint("Radius", 4, Q("0.015625 in")),
    Sketcher.Constraint("DistanceX", 0, 1, 0, 2, Q("0.01 in")),
    Sketcher.Constraint("DistanceY", 10, 2, 10, 1, Q("0.14 in")),
    Sketcher.Constraint("DistanceX", -1, 1, 0, 2, Q("2.1755 in")),
    Sketcher.Constraint("DistanceX", 10, 1, 4, 3, 4.553458),
])
groove2 = body.newObject("PartDesign::Groove", "Groove001")
groove2.Profile = sketch5
groove2.ReferenceAxis = (sketch5, ["Axis0"])
groove2.Angle = 90

# Sketch on XZ plane
sketch6 = body.newObject("Sketcher::SketchObject", "Sketch005")
sketch6.AttachmentSupport = (doc.getObject("XZ_Plane"), [""])
sketch6.MapMode = "FlatFace"
sketch6.AttachmentOffset = App.Placement(V(0, 0, -1.127125), App.Rotation())
add_polygon(sketch6, [(-11.213694, 0), (-12.146001, 0.164391), (-12.146001, 0.365125), (-11.213694, 0.365125)])  # lines 0-3
sketch6.addGeometry(Part.LineSegment(V(-11.213694, -0.396875, 0), V(-12.146001, -0.396875, 0)), True)  # axis
sketch6.addConstraint([
    Sketcher.Constraint("Vertical", 1),
    Sketcher.Constraint("Horizontal", 2),
    Sketcher.Constraint("Vertical", 3),
    Sketcher.Constraint("Horizontal", 4),
    Sketcher.Constraint("PointOnObject", 3, 2, -1),
    Sketcher.Constraint("Vertical", 3, 2, 4, 1),
    Sketcher.Constraint("Vertical", 1, 2, 4, 2),
    Sketcher.Constraint("Angle", 0, Q("170 deg")),
    Sketcher.Constraint("DistanceY", 4, 1, 2, 2, Q("0.03 in")),
    Sketcher.Constraint("DistanceY", 4, 1, -1, 1, Q("0.015625 in")),
    Sketcher.Constraint("DistanceX", 0, 2, -1, 1, 12.146001),
    Sketcher.Constraint("Distance", 0, 0.946689),
])
groove3 = body.newObject("PartDesign::Groove", "Groove002")
groove3.Profile = sketch6
groove3.ReferenceAxis = (sketch6, ["Axis0"])
groove3.Angle = 90

# Sketch on XZ plane
sketch7 = body.newObject("Sketcher::SketchObject", "Sketch006")
sketch7.AttachmentSupport = (doc.getObject("XZ_Plane"), [""])
sketch7.MapMode = "FlatFace"
sketch7.AttachmentOffset = App.Placement(V(0, 0, -1.127125), App.Rotation())
add_polygon(sketch7, [(-12.146001, -10.065057), (-11.213694, -9.900666), (-11.213694, -10.265791), (-12.146001, -10.265791)])  # lines 0-3
sketch7.addGeometry(Part.LineSegment(V(-12.146001, -9.503791, 0), V(-11.213694, -9.503791, 0)), True)  # axis
sketch7.addConstraint([
    Sketcher.Constraint("Vertical", 1),
    Sketcher.Constraint("Horizontal", 2),
    Sketcher.Constraint("Vertical", 3),
    Sketcher.Constraint("Horizontal", 4),
    Sketcher.Constraint("Vertical", 3, 2, 4, 1),
    Sketcher.Constraint("Vertical", 1, 2, 4, 2),
    Sketcher.Constraint("Angle", 0, Q("10 deg")),
    Sketcher.Constraint("DistanceY", 2, 2, 4, 1, Q("0.03 in")),
    Sketcher.Constraint("DistanceY", 0, 2, 4, 1, Q("0.015625 in")),
    Sketcher.Constraint("DistanceX", 2, 2, -1, 1, 12.146001),
    Sketcher.Constraint("Distance", 0, 0.946689),
    Sketcher.Constraint("DistanceY", 1, 2, -1, 1, 10.265791),
])
groove4 = body.newObject("PartDesign::Groove", "Groove003")
groove4.Profile = sketch7
groove4.ReferenceAxis = (sketch7, ["Axis0"])
groove4.Angle = 90

# Sketch on XZ plane
sketch8 = body.newObject("Sketcher::SketchObject", "Sketch007")
sketch8.AttachmentSupport = (doc.getObject("XZ_Plane"), [""])
sketch8.MapMode = "FlatFace"
sketch8.AttachmentOffset = App.Placement(V(0, 0, 1.127125), App.Rotation())
add_polygon(sketch8, [(-11.213694, 0), (-12.146001, 0.164391), (-12.146001, 0.365125), (-11.213694, 0.365125)])  # lines 0-3
sketch8.addGeometry(Part.LineSegment(V(-12.146001, -0.396875, 0), V(-11.213694, -0.396875, 0)), True)  # axis
sketch8.addConstraint([
    Sketcher.Constraint("Vertical", 1),
    Sketcher.Constraint("Horizontal", 2),
    Sketcher.Constraint("Vertical", 3),
    Sketcher.Constraint("Horizontal", 4),
    Sketcher.Constraint("PointOnObject", 3, 2, -1),
    Sketcher.Constraint("Vertical", 1, 2, 4, 1),
    Sketcher.Constraint("Vertical", 3, 2, 4, 2),
    Sketcher.Constraint("Angle", 0, Q("170 deg")),
    Sketcher.Constraint("DistanceY", 4, 1, 1, 2, Q("0.03 in")),
    Sketcher.Constraint("DistanceY", 4, 1, -1, 1, Q("0.015625 in")),
    Sketcher.Constraint("DistanceX", 0, 2, -1, 1, 12.146001),
    Sketcher.Constraint("Distance", 0, 0.946689),
])
groove5 = body.newObject("PartDesign::Groove", "Groove004")
groove5.Profile = sketch8
groove5.ReferenceAxis = (sketch8, ["Axis0"])
groove5.Angle = 90

# Sketch on XZ plane
sketch9 = body.newObject("Sketcher::SketchObject", "Sketch008")
sketch9.AttachmentSupport = (doc.getObject("XZ_Plane"), [""])
sketch9.MapMode = "FlatFace"
sketch9.AttachmentOffset = App.Placement(V(0, 0, 1.127125), App.Rotation())
add_polygon(sketch9, [(-12.146001, -10.065057), (-11.213694, -9.900666), (-11.213694, -10.265791), (-12.146001, -10.265791)])  # lines 0-3
sketch9.addGeometry(Part.LineSegment(V(-11.213694, -9.503791, 0), V(-12.146001, -9.503791, 0)), True)  # axis
sketch9.addConstraint([
    Sketcher.Constraint("Vertical", 1),
    Sketcher.Constraint("Horizontal", 2),
    Sketcher.Constraint("Vertical", 3),
    Sketcher.Constraint("Horizontal", 4),
    Sketcher.Constraint("Vertical", 1, 2, 4, 1),
    Sketcher.Constraint("Vertical", 3, 2, 4, 2),
    Sketcher.Constraint("Angle", 0, Q("10 deg")),
    Sketcher.Constraint("DistanceY", 1, 2, 4, 1, Q("0.03 in")),
    Sketcher.Constraint("DistanceY", 0, 2, 4, 1, Q("0.015625 in")),
    Sketcher.Constraint("DistanceX", 2, 2, -1, 1, 12.146001),
    Sketcher.Constraint("Distance", 0, 0.946689),
    Sketcher.Constraint("DistanceY", 1, 2, -1, 1, 10.265791),
])
groove6 = body.newObject("PartDesign::Groove", "Groove005")
groove6.Profile = sketch9
groove6.ReferenceAxis = (sketch9, ["Axis0"])
groove6.Angle = 90

doc.recompute()
